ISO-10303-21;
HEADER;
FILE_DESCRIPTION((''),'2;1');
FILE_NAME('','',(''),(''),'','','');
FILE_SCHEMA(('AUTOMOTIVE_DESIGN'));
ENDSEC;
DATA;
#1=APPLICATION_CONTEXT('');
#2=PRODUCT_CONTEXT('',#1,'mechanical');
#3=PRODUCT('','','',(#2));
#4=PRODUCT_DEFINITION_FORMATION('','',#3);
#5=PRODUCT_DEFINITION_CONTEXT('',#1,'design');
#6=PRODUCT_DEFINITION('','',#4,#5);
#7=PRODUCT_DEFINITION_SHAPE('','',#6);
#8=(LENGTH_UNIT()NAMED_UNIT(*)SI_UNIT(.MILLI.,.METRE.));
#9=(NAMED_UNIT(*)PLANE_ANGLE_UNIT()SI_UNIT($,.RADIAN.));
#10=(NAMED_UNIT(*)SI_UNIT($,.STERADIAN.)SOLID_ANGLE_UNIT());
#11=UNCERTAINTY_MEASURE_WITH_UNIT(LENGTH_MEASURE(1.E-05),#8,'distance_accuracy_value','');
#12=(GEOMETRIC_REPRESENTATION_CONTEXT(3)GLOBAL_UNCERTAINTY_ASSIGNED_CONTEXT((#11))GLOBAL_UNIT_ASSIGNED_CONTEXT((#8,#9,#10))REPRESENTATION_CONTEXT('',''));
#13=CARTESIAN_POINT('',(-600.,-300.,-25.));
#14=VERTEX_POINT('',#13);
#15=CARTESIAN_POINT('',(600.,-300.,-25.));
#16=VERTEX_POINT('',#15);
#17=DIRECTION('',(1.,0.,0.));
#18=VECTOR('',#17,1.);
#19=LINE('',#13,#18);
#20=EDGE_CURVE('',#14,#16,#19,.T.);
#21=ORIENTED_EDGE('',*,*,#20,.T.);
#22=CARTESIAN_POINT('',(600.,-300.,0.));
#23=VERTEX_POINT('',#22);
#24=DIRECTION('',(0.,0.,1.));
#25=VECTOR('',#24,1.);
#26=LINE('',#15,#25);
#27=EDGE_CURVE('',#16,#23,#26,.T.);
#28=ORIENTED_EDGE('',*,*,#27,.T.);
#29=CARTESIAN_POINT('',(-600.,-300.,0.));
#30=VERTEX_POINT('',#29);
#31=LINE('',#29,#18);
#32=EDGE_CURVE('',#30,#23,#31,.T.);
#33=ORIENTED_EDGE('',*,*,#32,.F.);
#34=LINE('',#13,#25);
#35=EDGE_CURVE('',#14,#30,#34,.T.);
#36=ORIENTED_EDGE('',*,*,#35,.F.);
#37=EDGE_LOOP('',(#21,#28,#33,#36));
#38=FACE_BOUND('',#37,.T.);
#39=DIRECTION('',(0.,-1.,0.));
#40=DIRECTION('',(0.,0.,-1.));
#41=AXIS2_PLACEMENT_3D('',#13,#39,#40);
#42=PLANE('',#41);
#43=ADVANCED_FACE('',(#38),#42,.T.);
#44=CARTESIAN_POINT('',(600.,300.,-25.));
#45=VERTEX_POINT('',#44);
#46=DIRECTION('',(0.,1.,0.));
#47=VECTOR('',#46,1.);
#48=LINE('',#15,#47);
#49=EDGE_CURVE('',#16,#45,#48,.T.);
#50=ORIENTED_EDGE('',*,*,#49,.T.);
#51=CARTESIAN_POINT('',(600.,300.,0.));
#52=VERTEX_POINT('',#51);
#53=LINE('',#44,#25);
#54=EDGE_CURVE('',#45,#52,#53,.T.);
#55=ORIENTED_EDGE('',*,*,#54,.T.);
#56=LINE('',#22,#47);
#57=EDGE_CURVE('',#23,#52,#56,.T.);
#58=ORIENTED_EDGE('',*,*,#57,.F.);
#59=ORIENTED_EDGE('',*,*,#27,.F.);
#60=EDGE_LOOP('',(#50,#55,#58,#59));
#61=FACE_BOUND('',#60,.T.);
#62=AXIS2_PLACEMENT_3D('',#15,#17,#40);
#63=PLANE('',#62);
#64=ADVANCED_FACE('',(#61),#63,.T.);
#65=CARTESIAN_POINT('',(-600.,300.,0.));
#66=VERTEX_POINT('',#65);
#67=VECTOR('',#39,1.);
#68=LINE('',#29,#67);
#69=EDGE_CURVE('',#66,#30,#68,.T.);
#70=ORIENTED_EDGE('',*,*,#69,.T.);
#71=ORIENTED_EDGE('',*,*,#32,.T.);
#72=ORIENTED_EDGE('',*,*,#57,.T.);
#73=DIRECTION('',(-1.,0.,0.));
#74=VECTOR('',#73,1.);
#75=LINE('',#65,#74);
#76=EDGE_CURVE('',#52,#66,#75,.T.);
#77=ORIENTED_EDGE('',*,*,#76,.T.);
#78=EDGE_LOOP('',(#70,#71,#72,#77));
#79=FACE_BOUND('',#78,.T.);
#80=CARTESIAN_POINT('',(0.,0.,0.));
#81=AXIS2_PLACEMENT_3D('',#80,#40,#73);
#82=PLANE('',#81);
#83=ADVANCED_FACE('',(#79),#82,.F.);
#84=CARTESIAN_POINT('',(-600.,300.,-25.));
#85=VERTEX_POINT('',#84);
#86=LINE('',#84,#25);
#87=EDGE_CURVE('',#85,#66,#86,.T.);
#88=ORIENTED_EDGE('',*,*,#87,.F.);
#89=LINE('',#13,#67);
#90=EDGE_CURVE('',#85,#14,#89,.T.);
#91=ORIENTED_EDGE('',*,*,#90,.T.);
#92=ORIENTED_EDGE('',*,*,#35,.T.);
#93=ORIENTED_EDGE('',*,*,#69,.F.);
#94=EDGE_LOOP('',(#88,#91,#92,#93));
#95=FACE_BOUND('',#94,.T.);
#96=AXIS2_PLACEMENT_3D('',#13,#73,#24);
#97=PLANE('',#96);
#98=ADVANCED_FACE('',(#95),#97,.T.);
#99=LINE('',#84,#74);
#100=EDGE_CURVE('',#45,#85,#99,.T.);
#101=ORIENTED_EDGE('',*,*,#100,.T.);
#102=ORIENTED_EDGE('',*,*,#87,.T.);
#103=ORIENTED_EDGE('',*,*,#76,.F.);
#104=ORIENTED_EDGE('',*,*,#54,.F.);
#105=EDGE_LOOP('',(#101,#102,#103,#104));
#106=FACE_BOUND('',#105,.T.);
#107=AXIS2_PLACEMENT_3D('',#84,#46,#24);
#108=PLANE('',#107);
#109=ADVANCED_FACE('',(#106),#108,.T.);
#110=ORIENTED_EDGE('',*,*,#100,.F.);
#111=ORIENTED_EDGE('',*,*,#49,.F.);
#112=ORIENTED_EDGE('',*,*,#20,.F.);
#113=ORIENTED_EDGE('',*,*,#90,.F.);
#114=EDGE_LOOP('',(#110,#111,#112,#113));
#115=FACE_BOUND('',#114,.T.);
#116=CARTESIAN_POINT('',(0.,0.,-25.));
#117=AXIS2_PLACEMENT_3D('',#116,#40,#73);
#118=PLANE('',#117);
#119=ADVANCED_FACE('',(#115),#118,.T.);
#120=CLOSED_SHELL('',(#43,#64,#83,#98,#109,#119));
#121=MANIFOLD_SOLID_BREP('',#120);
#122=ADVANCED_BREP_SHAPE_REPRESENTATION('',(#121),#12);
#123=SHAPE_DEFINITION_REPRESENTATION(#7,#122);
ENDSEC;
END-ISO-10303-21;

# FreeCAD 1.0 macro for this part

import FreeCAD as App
import Part
import Sketcher

V = App.Vector


def add_polygon(sketch, points):
    """Adds a closed chain of lines whose ends are joined by coincident constraints."""
    first, n = sketch.GeometryCount, len(points)
    for a, b in zip(points, points[1:] + points[:1]):
        sketch.addGeometry(Part.LineSegment(App.Vector(*a, 0), App.Vector(*b, 0)), False)
    for i in range(n):
        sketch.addConstraint(Sketcher.Constraint("Coincident", first + i, 2, first + (i + 1) % n, 1))

doc = App.newDocument("Part")
body = doc.addObject("PartDesign::Body", "Body")

# Sketch on XY plane
sketch1 = body.newObject("Sketcher::SketchObject", "Sketch")
sketch1.AttachmentSupport = (doc.getObject("XY_Plane"), [""])
sketch1.MapMode = "FlatFace"
add_polygon(sketch1, [(-600, 300), (-600, -300), (600, -300), (600, 300)])  # lines 0-3
sketch1.addConstraint([
    Sketcher.Constraint("Vertical", 0),
    Sketcher.Constraint("Horizontal", 1),
    Sketcher.Constraint("Vertical", 2),
    Sketcher.Constraint("Horizontal", 3),
    Sketcher.Constraint("Symmetric", 0, 2, 2, 2, -1, 1),
    Sketcher.Constraint("DistanceX", 1, 1, 1, 2, 1200.0),
    Sketcher.Constraint("DistanceY", 0, 2, 0, 1, 600.0),
])
pad1 = body.newObject("PartDesign::Pad", "Pad")
pad1.Profile = sketch1
pad1.Length = 25
pad1.Reversed = True

doc.recompute()
